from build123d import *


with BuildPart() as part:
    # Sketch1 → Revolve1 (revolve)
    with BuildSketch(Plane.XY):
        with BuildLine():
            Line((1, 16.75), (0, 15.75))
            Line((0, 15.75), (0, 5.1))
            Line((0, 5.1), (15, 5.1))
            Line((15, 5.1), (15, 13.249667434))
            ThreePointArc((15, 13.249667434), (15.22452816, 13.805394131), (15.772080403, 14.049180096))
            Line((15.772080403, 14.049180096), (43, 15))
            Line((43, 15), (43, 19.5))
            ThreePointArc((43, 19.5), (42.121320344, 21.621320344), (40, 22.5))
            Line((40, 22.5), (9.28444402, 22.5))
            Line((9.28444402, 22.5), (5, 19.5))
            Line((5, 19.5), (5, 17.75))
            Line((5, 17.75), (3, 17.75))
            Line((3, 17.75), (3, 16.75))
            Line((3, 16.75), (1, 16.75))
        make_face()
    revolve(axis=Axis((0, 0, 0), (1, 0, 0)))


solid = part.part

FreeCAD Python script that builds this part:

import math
import FreeCAD as App
import Part
import Sketcher

V = App.Vector
Q = App.Units.Quantity

doc = App.newDocument("Part")
body = doc.addObject("PartDesign::Body", "Body")

sketch1 = body.newObject("Sketcher::SketchObject", "Sketch")
sketch1.AttachmentSupport = (doc.getObject("XY_Plane"), [""])
sketch1.MapMode = "FlatFace"
sketch1.addGeometry(Part.LineSegment(V(1, 16.8, 0), V(0, 15.8, 0)), False)
sketch1.addGeometry(Part.LineSegment(V(0, 15.8, 0), V(0, 5.1, 0)), False)
sketch1.addGeometry(Part.LineSegment(V(0, 5.1, 0), V(15, 5.1, 0)), False)
sketch1.addGeometry(Part.LineSegment(V(15, 5.1, 0), V(15, 13.2, 0)), False)
sketch1.addGeometry(Part.ArcOfCircle(Part.Circle(V(15.8, 13.2, 0), V(0, 0, 1), 0.8), math.radians(92), math.radians(180)), False)
sketch1.addGeometry(Part.LineSegment(V(15.8, 14, 0), V(43, 15, 0)), False)
sketch1.addGeometry(Part.LineSegment(V(43, 15, 0), V(43, 19.5, 0)), False)
sketch1.addGeometry(Part.ArcOfCircle(Part.Circle(V(40, 19.5, 0), V(0, 0, 1), 3), math.radians(0), math.radians(90)), False)
sketch1.addGeometry(Part.LineSegment(V(40, 22.5, 0), V(9.3, 22.5, 0)), False)
sketch1.addGeometry(Part.LineSegment(V(9.3, 22.5, 0), V(5, 19.5, 0)), False)
sketch1.addGeometry(Part.LineSegment(V(5, 19.5, 0), V(5, 17.8, 0)), False)
sketch1.addGeometry(Part.LineSegment(V(5, 17.8, 0), V(3, 17.8, 0)), False)
sketch1.addGeometry(Part.LineSegment(V(3, 17.8, 0), V(3, 16.8, 0)), False)
sketch1.addGeometry(Part.LineSegment(V(3, 16.8, 0), V(1, 16.8, 0)), False)
sketch1.addConstraint(Sketcher.Constraint("Coincident", 0, 2, 1, 1))
sketch1.addConstraint(Sketcher.Constraint("Coincident", 1, 2, 2, 1))
sketch1.addConstraint(Sketcher.Constraint("Coincident", 2, 2, 3, 1))
sketch1.addConstraint(Sketcher.Constraint("Tangent", 3, 2, 4, 2))
sketch1.addConstraint(Sketcher.Constraint("Tangent", 4, 1, 5, 1))
sketch1.addConstraint(Sketcher.Constraint("Coincident", 5, 2, 6, 1))
sketch1.addConstraint(Sketcher.Constraint("Tangent", 6, 2, 7, 1))
sketch1.addConstraint(Sketcher.Constraint("Tangent", 7, 2, 8, 1))
sketch1.addConstraint(Sketcher.Constraint("Coincident", 8, 2, 9, 1))
sketch1.addConstraint(Sketcher.Constraint("Coincident", 9, 2, 10, 1))
sketch1.addConstraint(Sketcher.Constraint("Coincident", 10, 2, 11, 1))
sketch1.addConstraint(Sketcher.Constraint("Coincident", 11, 2, 12, 1))
sketch1.addConstraint(Sketcher.Constraint("Coincident", 12, 2, 13, 1))
sketch1.addConstraint(Sketcher.Constraint("Coincident", 13, 2, 0, 1))
sketch1.addConstraint(Sketcher.Constraint("Vertical", 1))
sketch1.addConstraint(Sketcher.Constraint("Horizontal", 2))
sketch1.addConstraint(Sketcher.Constraint("Vertical", 3))
sketch1.addConstraint(Sketcher.Constraint("Vertical", 6))
sketch1.addConstraint(Sketcher.Constraint("Horizontal", 8))
sketch1.addConstraint(Sketcher.Constraint("Vertical", 10))
sketch1.addConstraint(Sketcher.Constraint("Horizontal", 11))
sketch1.addConstraint(Sketcher.Constraint("Vertical", 12))
sketch1.addConstraint(Sketcher.Constraint("Horizontal", 13))
sketch1.addConstraint(Sketcher.Constraint("PointOnObject", 0, 2, -2))
sketch1.addConstraint(Sketcher.Constraint("Horizontal", 6, 2, 9, 2))
sketch1.addConstraint(Sketcher.Constraint("Equal", 11, 13))
sketch1.addConstraint(Sketcher.Constraint("Radius", 7, 3.0))
sketch1.addConstraint(Sketcher.Constraint("Radius", 4, 0.8))
sketch1.addConstraint(Sketcher.Constraint("DistanceX", 2, 1, 2, 2, 15.0))
sketch1.addConstraint(Sketcher.Constraint("DistanceX", 11, 2, 11, 1, 2.0))
sketch1.addConstraint(Sketcher.Constraint("DistanceY", 12, 2, 12, 1, 1.0))
sketch1.addConstraint(Sketcher.Constraint("Angle", 0, Q("-135 deg")))
sketch1.addConstraint(Sketcher.Constraint("Angle", 5, Q("2 deg")))
sketch1.addConstraint(Sketcher.Constraint("Angle", 9, Q("-145 deg")))
sketch1.addConstraint(Sketcher.Constraint("DistanceY", 6, 1, 6, 2, 4.5))
sketch1.addConstraint(Sketcher.Constraint("DistanceX", -1, 1, 7, 3, 40.0))
sketch1.addConstraint(Sketcher.Constraint("DistanceY", -1, 1, 5, 2, 15.0))
sketch1.addConstraint(Sketcher.Constraint("DistanceX", -1, 1, 9, 2, 5.0))
sketch1.addConstraint(Sketcher.Constraint("DistanceY", 1, 2, 1, 1, 10.65))
sketch1.addConstraint(Sketcher.Constraint("DistanceY", 10, 2, 10, 1, 1.75))
revolution = body.newObject("PartDesign::Revolution", "Revolution")
revolution.Profile = sketch1
revolution.ReferenceAxis = (sketch1, ["H_Axis"])
revolution.Angle = 360

doc.recompute()
